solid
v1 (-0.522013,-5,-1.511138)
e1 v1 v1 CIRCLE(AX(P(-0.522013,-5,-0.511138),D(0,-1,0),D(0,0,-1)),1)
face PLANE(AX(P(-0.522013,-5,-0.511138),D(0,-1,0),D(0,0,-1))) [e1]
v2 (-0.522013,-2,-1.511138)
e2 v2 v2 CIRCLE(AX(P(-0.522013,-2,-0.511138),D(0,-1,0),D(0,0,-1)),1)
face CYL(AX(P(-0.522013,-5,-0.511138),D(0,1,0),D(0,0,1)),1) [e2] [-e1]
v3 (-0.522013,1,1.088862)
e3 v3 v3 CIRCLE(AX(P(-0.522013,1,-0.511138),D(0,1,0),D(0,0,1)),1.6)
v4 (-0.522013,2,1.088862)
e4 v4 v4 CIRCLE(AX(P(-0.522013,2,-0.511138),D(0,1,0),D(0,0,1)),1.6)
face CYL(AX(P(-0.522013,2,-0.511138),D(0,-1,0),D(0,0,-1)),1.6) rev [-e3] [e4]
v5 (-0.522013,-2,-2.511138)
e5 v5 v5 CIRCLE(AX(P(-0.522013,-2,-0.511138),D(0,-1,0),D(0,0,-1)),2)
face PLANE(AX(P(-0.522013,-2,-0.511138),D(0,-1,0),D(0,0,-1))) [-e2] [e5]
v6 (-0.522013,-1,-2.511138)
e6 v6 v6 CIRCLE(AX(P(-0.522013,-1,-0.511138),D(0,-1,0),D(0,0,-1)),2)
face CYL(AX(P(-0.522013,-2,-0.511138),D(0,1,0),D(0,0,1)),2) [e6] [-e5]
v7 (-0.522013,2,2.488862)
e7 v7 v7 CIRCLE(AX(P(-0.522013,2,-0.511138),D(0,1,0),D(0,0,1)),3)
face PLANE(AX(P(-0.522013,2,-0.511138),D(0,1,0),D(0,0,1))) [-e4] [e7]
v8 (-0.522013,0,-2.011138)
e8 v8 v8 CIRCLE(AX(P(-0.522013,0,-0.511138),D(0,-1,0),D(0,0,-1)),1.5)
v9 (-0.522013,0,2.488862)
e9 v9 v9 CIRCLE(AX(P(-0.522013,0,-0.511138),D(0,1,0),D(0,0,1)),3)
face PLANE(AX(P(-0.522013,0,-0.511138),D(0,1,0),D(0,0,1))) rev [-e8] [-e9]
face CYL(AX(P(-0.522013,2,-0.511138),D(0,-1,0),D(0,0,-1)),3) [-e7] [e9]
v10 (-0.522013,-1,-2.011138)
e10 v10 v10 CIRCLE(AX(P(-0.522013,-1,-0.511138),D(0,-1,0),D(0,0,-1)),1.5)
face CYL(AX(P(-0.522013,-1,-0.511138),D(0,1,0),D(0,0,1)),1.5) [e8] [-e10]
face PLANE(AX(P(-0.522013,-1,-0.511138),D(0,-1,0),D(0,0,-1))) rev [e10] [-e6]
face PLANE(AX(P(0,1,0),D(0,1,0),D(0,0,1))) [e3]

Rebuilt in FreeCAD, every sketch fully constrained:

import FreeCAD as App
import Part
import Sketcher
from FreeCAD import Vector
Q = App.Units.Quantity

doc = App.newDocument("Part")
body = doc.addObject("PartDesign::Body", "Body")

# Sketch on XZ plane
sketch1 = body.newObject("Sketcher::SketchObject", "Sketch")
sketch1.AttachmentSupport = (doc.getObject("XZ_Plane"), [""])
sketch1.MapMode = "FlatFace"
sketch1.addGeometry(Part.Circle(Vector(-0.522013, -0.511138, 0), Vector(0, 0, 1), 3), False)
sketch1.addGeometry(Part.Circle(Vector(-0.522013, -0.511138, 0), Vector(0, 0, 1), 1.6), False)
sketch1.addConstraint(Sketcher.Constraint("Coincident", 1, 3, 0, 3))
sketch1.addConstraint(Sketcher.Constraint("Diameter", 0, Q("6 mm")))
sketch1.addConstraint(Sketcher.Constraint("Diameter", 1, Q("3.2 mm")))
sketch1.addConstraint(Sketcher.Constraint("DistanceY", 0, 3, -1, 1, Q("0.511138 mm")))
sketch1.addConstraint(Sketcher.Constraint("DistanceX", 0, 3, -1, 1, Q("0.522013 mm")))
pad1 = body.newObject("PartDesign::Pad", "Pad")
pad1.Profile = sketch1
pad1.Length = 2
pad1.Reversed = True

# Sketch on XZ plane
sketch2 = body.newObject("Sketcher::SketchObject", "Sketch001")
sketch2.AttachmentSupport = (doc.getObject("XZ_Plane"), [""])
sketch2.MapMode = "FlatFace"
sketch2.addGeometry(Part.Circle(Vector(-0.522013, -0.511138, 0), Vector(0, 0, 1), 1.6), False)
sketch2.addConstraint(Sketcher.Constraint("Diameter", 0, Q("3.2 mm")))
sketch2.addConstraint(Sketcher.Constraint("DistanceY", 0, 3, -1, 1, Q("0.511138 mm")))
sketch2.addConstraint(Sketcher.Constraint("DistanceX", 0, 3, -1, 1, Q("0.522013 mm")))
pad2 = body.newObject("PartDesign::Pad", "Pad001")
pad2.Profile = sketch2
pad2.Length = 1
pad2.Reversed = True

# Sketch on XZ plane
sketch3 = body.newObject("Sketcher::SketchObject", "Sketch002")
sketch3.AttachmentSupport = (doc.getObject("XZ_Plane"), [""])
sketch3.MapMode = "FlatFace"
sketch3.addGeometry(Part.Circle(Vector(-0.522013, -0.511138, 0), Vector(0, 0, 1), 1.5), False)
sketch3.addConstraint(Sketcher.Constraint("Diameter", 0, Q("3 mm")))
sketch3.addConstraint(Sketcher.Constraint("DistanceY", 0, 3, -1, 1, Q("0.511138 mm")))
sketch3.addConstraint(Sketcher.Constraint("DistanceX", 0, 3, -1, 1, Q("0.522013 mm")))
pad3 = body.newObject("PartDesign::Pad", "Pad002")
pad3.Profile = sketch3
pad3.Length = 1

# Sketch on XZ plane
sketch4 = body.newObject("Sketcher::SketchObject", "Sketch003")
sketch4.AttachmentSupport = (doc.getObject("XZ_Plane"), [""])
sketch4.MapMode = "FlatFace"
sketch4.AttachmentOffset = App.Placement(Vector(0, 0, 1), App.Rotation())
sketch4.addGeometry(Part.Circle(Vector(-0.522013, -0.511138, 0), Vector(0, 0, 1), 2), False)
sketch4.addConstraint(Sketcher.Constraint("Diameter", 0, Q("4 mm")))
sketch4.addConstraint(Sketcher.Constraint("DistanceY", 0, 3, -1, 1, Q("0.511138 mm")))
sketch4.addConstraint(Sketcher.Constraint("DistanceX", 0, 3, -1, 1, Q("0.522013 mm")))
pad4 = body.newObject("PartDesign::Pad", "Pad003")
pad4.Profile = sketch4
pad4.Length = 1

# Sketch on XZ plane
sketch5 = body.newObject("Sketcher::SketchObject", "Sketch004")
sketch5.AttachmentSupport = (doc.getObject("XZ_Plane"), [""])
sketch5.MapMode = "FlatFace"
sketch5.AttachmentOffset = App.Placement(Vector(0, 0, 2), App.Rotation())
sketch5.addGeometry(Part.Circle(Vector(-0.522013, -0.511138, 0), Vector(0, 0, 1), 1), False)
sketch5.addConstraint(Sketcher.Constraint("Diameter", 0, Q("2 mm")))
sketch5.addConstraint(Sketcher.Constraint("DistanceY", 0, 3, -1, 1, Q("0.511138 mm")))
sketch5.addConstraint(Sketcher.Constraint("DistanceX", 0, 3, -1, 1, Q("0.522013 mm")))
pad5 = body.newObject("PartDesign::Pad", "Pad004")
pad5.Profile = sketch5
pad5.Length = 3

doc.recompute()
